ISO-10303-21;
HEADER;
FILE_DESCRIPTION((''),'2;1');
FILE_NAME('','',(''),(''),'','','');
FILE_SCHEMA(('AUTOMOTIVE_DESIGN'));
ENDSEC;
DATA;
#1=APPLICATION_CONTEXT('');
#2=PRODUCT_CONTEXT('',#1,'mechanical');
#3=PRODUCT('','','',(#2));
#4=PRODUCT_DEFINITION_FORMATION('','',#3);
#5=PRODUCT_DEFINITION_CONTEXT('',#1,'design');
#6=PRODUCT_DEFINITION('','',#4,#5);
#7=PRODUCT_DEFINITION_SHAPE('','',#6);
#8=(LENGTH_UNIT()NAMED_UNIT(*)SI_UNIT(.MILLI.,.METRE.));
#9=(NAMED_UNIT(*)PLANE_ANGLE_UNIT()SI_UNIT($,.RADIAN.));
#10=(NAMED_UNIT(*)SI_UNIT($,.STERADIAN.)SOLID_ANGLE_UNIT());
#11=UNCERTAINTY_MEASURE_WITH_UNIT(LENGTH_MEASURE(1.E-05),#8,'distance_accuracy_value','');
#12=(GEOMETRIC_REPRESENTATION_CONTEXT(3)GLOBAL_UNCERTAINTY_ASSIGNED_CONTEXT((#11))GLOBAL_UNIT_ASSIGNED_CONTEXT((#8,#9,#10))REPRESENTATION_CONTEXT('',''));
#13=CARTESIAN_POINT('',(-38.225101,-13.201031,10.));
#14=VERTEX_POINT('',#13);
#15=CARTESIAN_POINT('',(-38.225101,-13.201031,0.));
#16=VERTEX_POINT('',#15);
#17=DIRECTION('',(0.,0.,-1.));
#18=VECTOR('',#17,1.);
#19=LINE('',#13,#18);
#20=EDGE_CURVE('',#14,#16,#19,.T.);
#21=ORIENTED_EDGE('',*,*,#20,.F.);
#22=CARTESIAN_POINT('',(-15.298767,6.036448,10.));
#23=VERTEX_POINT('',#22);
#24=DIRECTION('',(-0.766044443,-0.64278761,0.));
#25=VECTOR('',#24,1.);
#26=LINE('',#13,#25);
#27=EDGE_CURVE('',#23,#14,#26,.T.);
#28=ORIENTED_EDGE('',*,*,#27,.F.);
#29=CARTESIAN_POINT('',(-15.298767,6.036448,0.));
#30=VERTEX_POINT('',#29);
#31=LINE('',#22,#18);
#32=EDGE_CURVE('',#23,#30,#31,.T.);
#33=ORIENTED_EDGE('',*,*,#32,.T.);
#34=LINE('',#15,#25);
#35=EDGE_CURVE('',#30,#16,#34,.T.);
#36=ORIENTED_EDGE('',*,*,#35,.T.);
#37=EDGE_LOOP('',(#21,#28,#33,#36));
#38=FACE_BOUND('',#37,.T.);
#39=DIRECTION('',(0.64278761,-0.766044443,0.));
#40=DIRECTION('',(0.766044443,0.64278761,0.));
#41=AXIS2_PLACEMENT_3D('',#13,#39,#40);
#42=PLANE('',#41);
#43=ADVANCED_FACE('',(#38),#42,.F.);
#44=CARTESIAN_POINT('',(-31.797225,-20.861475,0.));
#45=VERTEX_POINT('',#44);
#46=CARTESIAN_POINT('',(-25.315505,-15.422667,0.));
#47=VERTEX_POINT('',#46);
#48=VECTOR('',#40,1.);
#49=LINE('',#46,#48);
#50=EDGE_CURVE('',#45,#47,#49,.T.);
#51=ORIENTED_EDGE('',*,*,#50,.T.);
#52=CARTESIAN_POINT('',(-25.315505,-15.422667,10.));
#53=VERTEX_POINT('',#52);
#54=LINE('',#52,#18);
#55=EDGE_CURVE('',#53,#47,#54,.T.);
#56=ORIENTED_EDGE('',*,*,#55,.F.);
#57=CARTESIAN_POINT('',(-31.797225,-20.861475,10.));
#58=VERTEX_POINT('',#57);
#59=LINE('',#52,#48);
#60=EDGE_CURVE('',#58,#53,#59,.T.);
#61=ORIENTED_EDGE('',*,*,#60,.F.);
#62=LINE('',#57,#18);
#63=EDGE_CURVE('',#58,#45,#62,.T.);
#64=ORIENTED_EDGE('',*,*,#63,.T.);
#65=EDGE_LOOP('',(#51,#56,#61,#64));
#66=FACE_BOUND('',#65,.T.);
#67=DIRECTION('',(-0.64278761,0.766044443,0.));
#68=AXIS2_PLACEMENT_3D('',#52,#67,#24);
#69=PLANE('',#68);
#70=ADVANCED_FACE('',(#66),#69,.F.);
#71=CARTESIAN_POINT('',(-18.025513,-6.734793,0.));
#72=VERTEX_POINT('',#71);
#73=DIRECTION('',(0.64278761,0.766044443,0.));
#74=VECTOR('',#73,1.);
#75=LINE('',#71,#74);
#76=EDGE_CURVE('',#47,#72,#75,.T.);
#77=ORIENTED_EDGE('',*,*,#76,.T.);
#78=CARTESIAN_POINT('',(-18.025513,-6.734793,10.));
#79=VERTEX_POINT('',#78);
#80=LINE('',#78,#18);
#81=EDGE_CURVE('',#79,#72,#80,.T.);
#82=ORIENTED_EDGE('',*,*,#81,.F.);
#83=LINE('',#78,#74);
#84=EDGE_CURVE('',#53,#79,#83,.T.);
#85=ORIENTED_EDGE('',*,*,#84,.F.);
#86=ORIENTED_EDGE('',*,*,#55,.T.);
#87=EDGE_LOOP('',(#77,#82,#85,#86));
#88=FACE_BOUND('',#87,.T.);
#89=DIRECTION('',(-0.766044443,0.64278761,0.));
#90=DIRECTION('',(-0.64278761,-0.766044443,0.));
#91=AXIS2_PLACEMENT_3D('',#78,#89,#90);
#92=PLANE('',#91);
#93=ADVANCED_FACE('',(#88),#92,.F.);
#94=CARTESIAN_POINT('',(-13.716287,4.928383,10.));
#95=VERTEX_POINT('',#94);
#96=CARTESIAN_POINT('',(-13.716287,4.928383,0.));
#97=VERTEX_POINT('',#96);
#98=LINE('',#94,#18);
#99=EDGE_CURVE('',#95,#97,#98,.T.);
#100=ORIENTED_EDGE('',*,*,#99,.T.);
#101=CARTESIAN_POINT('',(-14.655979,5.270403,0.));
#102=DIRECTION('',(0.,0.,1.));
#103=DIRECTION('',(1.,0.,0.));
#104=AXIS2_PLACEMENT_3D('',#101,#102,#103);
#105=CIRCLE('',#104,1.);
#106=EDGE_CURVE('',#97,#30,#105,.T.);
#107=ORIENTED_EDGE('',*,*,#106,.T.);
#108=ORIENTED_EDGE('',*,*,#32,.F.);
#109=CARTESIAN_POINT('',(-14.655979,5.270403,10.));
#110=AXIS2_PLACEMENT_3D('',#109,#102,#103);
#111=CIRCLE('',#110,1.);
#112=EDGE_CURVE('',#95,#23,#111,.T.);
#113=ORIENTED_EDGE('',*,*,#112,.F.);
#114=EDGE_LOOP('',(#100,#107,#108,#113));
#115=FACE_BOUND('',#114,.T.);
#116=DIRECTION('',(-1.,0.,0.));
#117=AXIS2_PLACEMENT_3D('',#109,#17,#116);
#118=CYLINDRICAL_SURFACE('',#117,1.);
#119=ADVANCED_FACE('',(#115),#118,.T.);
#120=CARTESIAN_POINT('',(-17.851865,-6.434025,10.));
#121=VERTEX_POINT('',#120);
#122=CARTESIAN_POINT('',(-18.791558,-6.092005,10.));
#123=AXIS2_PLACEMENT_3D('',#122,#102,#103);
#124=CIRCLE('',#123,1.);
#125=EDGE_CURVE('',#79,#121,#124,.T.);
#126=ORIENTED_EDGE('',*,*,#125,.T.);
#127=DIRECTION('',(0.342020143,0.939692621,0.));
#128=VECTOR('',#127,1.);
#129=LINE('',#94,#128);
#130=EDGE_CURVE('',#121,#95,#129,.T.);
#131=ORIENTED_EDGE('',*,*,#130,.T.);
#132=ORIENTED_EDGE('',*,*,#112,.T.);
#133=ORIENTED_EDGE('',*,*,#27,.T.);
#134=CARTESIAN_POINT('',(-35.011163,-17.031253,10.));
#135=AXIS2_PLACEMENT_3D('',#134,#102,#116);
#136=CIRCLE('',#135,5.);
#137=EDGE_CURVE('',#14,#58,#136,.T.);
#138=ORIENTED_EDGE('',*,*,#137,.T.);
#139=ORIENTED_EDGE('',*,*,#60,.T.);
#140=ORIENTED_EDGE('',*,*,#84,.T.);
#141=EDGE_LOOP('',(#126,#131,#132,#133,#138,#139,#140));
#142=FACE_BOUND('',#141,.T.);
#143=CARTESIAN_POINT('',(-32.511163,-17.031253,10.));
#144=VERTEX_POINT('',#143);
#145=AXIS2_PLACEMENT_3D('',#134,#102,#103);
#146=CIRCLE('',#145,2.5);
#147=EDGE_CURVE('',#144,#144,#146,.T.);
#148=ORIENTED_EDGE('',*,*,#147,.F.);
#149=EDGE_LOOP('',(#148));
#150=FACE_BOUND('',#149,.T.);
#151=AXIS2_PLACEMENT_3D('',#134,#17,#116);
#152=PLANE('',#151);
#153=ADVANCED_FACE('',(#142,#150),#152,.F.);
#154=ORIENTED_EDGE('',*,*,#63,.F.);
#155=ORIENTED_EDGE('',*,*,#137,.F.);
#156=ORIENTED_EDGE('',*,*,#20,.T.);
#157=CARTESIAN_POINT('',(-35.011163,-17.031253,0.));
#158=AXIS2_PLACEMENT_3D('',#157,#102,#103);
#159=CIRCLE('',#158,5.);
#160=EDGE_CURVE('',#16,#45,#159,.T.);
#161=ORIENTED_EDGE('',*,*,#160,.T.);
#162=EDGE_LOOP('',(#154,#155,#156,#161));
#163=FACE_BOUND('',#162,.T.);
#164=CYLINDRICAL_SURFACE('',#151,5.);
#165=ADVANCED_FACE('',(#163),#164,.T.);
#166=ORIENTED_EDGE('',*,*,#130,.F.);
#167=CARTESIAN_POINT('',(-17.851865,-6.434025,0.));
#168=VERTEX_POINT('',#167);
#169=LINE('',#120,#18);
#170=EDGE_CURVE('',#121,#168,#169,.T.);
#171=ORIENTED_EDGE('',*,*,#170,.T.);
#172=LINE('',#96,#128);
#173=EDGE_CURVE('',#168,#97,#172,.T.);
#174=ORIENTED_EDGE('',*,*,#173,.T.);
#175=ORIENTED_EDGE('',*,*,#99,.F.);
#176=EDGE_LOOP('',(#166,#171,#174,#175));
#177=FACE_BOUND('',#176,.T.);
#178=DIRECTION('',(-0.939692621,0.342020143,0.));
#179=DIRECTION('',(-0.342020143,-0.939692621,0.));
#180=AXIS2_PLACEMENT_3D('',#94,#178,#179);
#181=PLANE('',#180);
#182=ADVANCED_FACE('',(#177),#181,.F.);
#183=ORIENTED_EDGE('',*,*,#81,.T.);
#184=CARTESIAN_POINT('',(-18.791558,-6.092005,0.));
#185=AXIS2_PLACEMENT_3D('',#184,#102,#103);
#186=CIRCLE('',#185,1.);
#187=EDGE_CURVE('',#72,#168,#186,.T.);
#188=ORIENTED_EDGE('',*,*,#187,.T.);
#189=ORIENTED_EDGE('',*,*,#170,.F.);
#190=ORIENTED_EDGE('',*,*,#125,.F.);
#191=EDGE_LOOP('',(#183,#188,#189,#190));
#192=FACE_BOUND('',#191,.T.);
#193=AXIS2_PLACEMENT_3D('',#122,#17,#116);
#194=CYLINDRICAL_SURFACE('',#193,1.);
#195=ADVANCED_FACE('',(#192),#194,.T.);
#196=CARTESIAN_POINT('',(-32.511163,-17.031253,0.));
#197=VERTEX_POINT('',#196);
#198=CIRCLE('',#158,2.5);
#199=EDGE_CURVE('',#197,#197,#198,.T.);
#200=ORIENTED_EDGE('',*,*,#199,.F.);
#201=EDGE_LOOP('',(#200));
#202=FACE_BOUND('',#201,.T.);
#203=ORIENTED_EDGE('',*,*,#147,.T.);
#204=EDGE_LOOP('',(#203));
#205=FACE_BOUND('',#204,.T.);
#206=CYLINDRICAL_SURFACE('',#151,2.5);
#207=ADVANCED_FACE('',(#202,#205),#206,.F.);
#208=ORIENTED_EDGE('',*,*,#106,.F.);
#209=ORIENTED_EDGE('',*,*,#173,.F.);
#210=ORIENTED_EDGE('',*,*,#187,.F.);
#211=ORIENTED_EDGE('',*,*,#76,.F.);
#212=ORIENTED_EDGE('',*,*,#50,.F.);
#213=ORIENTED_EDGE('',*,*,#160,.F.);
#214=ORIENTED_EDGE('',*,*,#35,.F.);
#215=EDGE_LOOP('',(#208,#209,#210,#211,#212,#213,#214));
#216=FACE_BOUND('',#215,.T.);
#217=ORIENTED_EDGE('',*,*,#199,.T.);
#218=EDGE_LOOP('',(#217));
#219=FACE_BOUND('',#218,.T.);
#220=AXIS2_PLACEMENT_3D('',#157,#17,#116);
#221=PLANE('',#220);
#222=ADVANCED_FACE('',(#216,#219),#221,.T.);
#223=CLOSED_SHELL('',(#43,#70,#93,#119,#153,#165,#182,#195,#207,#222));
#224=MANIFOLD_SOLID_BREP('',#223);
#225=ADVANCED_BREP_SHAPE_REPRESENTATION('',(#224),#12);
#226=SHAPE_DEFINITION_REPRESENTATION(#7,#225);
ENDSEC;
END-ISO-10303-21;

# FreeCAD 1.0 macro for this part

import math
import FreeCAD as App
import Part
import Sketcher
Q = App.Units.Quantity

doc = App.newDocument("Part")
body = doc.addObject("PartDesign::Body", "Body")

# Sketch on XY plane
sketch1 = body.newObject("Sketcher::SketchObject", "Sketch")
sketch1.AttachmentSupport = (doc.getObject("XY_Plane"), [""])
sketch1.MapMode = "FlatFace"
sketch1.addGeometry([
    Part.LineSegment(App.Vector(-17.85, -6.43, 0), App.Vector(-13.72, 4.93, 0)),  # 0
    Part.ArcOfCircle(Part.Circle(App.Vector(-14.66, 5.27, 0), App.Vector(0, 0, 1), 1), math.radians(-20), math.radians(130)),  # 1
    Part.LineSegment(App.Vector(-15.3, 6.04, 0), App.Vector(-38.23, -13.2, 0)),  # 2
    Part.ArcOfCircle(Part.Circle(App.Vector(-35.01, -17.03, 0), App.Vector(0, 0, 1), 5), math.radians(130), math.radians(220)),  # 3
    Part.ArcOfCircle(Part.Circle(App.Vector(-35.01, -17.03, 0), App.Vector(0, 0, 1), 5), math.radians(-140), math.radians(-50)),  # 4
    Part.LineSegment(App.Vector(-31.8, -20.86, 0), App.Vector(-25.32, -15.42, 0)),  # 5
    Part.LineSegment(App.Vector(-25.32, -15.42, 0), App.Vector(-18.03, -6.73, 0)),  # 6
    Part.ArcOfCircle(Part.Circle(App.Vector(-18.79, -6.09, 0), App.Vector(0, 0, 1), 1), math.radians(-40), math.radians(-20)),  # 7
    Part.Circle(App.Vector(-35.01, -17.03, 0), App.Vector(0, 0, 1), 2.5),  # 8
], False)
sketch1.addConstraint([
    Sketcher.Constraint("Tangent", 0, 2, 1, 1),
    Sketcher.Constraint("Tangent", 1, 2, 2, 1),
    Sketcher.Constraint("Tangent", 2, 2, 3, 1),
    Sketcher.Constraint("Tangent", 3, 2, 4, 1),
    Sketcher.Constraint("Tangent", 4, 2, 5, 1),
    Sketcher.Constraint("Coincident", 5, 2, 6, 1),
    Sketcher.Constraint("Tangent", 6, 2, 7, 1),
    Sketcher.Constraint("Tangent", 7, 2, 0, 1),
    Sketcher.Constraint("Coincident", 8, 3, 3, 3),
    Sketcher.Constraint("Equal", 3, 4),
    Sketcher.Constraint("Equal", 1, 7),
    Sketcher.Constraint("Parallel", 2, 5),
    Sketcher.Constraint("Diameter", 8, Q("5 mm")),
    Sketcher.Constraint("Radius", 1, Q("1 mm")),
    Sketcher.Constraint("Radius", 3, Q("5 mm")),
    Sketcher.Constraint("Angle", 0, Q("70 deg")),
    Sketcher.Constraint("Angle", 2, Q("-140 deg")),
    Sketcher.Constraint("Angle", 6, Q("50 deg")),
    Sketcher.Constraint("DistanceX", 2, 2, -1, 1, Q("38.225101 mm")),
    Sketcher.Constraint("DistanceY", 4, 3, 1, 2, Q("23.0677 mm")),
    Sketcher.Constraint("DistanceY", 2, 2, -1, 1, Q("13.201031 mm")),
    Sketcher.Constraint("DistanceY", 3, 2, -1, 1, Q("20.245191 mm")),
    Sketcher.Constraint("DistanceX", 7, 3, 1, 3, Q("4.135578 mm")),
])
pad1 = body.newObject("PartDesign::Pad", "Pad")
pad1.Profile = sketch1
pad1.Length = 10

doc.recompute()
